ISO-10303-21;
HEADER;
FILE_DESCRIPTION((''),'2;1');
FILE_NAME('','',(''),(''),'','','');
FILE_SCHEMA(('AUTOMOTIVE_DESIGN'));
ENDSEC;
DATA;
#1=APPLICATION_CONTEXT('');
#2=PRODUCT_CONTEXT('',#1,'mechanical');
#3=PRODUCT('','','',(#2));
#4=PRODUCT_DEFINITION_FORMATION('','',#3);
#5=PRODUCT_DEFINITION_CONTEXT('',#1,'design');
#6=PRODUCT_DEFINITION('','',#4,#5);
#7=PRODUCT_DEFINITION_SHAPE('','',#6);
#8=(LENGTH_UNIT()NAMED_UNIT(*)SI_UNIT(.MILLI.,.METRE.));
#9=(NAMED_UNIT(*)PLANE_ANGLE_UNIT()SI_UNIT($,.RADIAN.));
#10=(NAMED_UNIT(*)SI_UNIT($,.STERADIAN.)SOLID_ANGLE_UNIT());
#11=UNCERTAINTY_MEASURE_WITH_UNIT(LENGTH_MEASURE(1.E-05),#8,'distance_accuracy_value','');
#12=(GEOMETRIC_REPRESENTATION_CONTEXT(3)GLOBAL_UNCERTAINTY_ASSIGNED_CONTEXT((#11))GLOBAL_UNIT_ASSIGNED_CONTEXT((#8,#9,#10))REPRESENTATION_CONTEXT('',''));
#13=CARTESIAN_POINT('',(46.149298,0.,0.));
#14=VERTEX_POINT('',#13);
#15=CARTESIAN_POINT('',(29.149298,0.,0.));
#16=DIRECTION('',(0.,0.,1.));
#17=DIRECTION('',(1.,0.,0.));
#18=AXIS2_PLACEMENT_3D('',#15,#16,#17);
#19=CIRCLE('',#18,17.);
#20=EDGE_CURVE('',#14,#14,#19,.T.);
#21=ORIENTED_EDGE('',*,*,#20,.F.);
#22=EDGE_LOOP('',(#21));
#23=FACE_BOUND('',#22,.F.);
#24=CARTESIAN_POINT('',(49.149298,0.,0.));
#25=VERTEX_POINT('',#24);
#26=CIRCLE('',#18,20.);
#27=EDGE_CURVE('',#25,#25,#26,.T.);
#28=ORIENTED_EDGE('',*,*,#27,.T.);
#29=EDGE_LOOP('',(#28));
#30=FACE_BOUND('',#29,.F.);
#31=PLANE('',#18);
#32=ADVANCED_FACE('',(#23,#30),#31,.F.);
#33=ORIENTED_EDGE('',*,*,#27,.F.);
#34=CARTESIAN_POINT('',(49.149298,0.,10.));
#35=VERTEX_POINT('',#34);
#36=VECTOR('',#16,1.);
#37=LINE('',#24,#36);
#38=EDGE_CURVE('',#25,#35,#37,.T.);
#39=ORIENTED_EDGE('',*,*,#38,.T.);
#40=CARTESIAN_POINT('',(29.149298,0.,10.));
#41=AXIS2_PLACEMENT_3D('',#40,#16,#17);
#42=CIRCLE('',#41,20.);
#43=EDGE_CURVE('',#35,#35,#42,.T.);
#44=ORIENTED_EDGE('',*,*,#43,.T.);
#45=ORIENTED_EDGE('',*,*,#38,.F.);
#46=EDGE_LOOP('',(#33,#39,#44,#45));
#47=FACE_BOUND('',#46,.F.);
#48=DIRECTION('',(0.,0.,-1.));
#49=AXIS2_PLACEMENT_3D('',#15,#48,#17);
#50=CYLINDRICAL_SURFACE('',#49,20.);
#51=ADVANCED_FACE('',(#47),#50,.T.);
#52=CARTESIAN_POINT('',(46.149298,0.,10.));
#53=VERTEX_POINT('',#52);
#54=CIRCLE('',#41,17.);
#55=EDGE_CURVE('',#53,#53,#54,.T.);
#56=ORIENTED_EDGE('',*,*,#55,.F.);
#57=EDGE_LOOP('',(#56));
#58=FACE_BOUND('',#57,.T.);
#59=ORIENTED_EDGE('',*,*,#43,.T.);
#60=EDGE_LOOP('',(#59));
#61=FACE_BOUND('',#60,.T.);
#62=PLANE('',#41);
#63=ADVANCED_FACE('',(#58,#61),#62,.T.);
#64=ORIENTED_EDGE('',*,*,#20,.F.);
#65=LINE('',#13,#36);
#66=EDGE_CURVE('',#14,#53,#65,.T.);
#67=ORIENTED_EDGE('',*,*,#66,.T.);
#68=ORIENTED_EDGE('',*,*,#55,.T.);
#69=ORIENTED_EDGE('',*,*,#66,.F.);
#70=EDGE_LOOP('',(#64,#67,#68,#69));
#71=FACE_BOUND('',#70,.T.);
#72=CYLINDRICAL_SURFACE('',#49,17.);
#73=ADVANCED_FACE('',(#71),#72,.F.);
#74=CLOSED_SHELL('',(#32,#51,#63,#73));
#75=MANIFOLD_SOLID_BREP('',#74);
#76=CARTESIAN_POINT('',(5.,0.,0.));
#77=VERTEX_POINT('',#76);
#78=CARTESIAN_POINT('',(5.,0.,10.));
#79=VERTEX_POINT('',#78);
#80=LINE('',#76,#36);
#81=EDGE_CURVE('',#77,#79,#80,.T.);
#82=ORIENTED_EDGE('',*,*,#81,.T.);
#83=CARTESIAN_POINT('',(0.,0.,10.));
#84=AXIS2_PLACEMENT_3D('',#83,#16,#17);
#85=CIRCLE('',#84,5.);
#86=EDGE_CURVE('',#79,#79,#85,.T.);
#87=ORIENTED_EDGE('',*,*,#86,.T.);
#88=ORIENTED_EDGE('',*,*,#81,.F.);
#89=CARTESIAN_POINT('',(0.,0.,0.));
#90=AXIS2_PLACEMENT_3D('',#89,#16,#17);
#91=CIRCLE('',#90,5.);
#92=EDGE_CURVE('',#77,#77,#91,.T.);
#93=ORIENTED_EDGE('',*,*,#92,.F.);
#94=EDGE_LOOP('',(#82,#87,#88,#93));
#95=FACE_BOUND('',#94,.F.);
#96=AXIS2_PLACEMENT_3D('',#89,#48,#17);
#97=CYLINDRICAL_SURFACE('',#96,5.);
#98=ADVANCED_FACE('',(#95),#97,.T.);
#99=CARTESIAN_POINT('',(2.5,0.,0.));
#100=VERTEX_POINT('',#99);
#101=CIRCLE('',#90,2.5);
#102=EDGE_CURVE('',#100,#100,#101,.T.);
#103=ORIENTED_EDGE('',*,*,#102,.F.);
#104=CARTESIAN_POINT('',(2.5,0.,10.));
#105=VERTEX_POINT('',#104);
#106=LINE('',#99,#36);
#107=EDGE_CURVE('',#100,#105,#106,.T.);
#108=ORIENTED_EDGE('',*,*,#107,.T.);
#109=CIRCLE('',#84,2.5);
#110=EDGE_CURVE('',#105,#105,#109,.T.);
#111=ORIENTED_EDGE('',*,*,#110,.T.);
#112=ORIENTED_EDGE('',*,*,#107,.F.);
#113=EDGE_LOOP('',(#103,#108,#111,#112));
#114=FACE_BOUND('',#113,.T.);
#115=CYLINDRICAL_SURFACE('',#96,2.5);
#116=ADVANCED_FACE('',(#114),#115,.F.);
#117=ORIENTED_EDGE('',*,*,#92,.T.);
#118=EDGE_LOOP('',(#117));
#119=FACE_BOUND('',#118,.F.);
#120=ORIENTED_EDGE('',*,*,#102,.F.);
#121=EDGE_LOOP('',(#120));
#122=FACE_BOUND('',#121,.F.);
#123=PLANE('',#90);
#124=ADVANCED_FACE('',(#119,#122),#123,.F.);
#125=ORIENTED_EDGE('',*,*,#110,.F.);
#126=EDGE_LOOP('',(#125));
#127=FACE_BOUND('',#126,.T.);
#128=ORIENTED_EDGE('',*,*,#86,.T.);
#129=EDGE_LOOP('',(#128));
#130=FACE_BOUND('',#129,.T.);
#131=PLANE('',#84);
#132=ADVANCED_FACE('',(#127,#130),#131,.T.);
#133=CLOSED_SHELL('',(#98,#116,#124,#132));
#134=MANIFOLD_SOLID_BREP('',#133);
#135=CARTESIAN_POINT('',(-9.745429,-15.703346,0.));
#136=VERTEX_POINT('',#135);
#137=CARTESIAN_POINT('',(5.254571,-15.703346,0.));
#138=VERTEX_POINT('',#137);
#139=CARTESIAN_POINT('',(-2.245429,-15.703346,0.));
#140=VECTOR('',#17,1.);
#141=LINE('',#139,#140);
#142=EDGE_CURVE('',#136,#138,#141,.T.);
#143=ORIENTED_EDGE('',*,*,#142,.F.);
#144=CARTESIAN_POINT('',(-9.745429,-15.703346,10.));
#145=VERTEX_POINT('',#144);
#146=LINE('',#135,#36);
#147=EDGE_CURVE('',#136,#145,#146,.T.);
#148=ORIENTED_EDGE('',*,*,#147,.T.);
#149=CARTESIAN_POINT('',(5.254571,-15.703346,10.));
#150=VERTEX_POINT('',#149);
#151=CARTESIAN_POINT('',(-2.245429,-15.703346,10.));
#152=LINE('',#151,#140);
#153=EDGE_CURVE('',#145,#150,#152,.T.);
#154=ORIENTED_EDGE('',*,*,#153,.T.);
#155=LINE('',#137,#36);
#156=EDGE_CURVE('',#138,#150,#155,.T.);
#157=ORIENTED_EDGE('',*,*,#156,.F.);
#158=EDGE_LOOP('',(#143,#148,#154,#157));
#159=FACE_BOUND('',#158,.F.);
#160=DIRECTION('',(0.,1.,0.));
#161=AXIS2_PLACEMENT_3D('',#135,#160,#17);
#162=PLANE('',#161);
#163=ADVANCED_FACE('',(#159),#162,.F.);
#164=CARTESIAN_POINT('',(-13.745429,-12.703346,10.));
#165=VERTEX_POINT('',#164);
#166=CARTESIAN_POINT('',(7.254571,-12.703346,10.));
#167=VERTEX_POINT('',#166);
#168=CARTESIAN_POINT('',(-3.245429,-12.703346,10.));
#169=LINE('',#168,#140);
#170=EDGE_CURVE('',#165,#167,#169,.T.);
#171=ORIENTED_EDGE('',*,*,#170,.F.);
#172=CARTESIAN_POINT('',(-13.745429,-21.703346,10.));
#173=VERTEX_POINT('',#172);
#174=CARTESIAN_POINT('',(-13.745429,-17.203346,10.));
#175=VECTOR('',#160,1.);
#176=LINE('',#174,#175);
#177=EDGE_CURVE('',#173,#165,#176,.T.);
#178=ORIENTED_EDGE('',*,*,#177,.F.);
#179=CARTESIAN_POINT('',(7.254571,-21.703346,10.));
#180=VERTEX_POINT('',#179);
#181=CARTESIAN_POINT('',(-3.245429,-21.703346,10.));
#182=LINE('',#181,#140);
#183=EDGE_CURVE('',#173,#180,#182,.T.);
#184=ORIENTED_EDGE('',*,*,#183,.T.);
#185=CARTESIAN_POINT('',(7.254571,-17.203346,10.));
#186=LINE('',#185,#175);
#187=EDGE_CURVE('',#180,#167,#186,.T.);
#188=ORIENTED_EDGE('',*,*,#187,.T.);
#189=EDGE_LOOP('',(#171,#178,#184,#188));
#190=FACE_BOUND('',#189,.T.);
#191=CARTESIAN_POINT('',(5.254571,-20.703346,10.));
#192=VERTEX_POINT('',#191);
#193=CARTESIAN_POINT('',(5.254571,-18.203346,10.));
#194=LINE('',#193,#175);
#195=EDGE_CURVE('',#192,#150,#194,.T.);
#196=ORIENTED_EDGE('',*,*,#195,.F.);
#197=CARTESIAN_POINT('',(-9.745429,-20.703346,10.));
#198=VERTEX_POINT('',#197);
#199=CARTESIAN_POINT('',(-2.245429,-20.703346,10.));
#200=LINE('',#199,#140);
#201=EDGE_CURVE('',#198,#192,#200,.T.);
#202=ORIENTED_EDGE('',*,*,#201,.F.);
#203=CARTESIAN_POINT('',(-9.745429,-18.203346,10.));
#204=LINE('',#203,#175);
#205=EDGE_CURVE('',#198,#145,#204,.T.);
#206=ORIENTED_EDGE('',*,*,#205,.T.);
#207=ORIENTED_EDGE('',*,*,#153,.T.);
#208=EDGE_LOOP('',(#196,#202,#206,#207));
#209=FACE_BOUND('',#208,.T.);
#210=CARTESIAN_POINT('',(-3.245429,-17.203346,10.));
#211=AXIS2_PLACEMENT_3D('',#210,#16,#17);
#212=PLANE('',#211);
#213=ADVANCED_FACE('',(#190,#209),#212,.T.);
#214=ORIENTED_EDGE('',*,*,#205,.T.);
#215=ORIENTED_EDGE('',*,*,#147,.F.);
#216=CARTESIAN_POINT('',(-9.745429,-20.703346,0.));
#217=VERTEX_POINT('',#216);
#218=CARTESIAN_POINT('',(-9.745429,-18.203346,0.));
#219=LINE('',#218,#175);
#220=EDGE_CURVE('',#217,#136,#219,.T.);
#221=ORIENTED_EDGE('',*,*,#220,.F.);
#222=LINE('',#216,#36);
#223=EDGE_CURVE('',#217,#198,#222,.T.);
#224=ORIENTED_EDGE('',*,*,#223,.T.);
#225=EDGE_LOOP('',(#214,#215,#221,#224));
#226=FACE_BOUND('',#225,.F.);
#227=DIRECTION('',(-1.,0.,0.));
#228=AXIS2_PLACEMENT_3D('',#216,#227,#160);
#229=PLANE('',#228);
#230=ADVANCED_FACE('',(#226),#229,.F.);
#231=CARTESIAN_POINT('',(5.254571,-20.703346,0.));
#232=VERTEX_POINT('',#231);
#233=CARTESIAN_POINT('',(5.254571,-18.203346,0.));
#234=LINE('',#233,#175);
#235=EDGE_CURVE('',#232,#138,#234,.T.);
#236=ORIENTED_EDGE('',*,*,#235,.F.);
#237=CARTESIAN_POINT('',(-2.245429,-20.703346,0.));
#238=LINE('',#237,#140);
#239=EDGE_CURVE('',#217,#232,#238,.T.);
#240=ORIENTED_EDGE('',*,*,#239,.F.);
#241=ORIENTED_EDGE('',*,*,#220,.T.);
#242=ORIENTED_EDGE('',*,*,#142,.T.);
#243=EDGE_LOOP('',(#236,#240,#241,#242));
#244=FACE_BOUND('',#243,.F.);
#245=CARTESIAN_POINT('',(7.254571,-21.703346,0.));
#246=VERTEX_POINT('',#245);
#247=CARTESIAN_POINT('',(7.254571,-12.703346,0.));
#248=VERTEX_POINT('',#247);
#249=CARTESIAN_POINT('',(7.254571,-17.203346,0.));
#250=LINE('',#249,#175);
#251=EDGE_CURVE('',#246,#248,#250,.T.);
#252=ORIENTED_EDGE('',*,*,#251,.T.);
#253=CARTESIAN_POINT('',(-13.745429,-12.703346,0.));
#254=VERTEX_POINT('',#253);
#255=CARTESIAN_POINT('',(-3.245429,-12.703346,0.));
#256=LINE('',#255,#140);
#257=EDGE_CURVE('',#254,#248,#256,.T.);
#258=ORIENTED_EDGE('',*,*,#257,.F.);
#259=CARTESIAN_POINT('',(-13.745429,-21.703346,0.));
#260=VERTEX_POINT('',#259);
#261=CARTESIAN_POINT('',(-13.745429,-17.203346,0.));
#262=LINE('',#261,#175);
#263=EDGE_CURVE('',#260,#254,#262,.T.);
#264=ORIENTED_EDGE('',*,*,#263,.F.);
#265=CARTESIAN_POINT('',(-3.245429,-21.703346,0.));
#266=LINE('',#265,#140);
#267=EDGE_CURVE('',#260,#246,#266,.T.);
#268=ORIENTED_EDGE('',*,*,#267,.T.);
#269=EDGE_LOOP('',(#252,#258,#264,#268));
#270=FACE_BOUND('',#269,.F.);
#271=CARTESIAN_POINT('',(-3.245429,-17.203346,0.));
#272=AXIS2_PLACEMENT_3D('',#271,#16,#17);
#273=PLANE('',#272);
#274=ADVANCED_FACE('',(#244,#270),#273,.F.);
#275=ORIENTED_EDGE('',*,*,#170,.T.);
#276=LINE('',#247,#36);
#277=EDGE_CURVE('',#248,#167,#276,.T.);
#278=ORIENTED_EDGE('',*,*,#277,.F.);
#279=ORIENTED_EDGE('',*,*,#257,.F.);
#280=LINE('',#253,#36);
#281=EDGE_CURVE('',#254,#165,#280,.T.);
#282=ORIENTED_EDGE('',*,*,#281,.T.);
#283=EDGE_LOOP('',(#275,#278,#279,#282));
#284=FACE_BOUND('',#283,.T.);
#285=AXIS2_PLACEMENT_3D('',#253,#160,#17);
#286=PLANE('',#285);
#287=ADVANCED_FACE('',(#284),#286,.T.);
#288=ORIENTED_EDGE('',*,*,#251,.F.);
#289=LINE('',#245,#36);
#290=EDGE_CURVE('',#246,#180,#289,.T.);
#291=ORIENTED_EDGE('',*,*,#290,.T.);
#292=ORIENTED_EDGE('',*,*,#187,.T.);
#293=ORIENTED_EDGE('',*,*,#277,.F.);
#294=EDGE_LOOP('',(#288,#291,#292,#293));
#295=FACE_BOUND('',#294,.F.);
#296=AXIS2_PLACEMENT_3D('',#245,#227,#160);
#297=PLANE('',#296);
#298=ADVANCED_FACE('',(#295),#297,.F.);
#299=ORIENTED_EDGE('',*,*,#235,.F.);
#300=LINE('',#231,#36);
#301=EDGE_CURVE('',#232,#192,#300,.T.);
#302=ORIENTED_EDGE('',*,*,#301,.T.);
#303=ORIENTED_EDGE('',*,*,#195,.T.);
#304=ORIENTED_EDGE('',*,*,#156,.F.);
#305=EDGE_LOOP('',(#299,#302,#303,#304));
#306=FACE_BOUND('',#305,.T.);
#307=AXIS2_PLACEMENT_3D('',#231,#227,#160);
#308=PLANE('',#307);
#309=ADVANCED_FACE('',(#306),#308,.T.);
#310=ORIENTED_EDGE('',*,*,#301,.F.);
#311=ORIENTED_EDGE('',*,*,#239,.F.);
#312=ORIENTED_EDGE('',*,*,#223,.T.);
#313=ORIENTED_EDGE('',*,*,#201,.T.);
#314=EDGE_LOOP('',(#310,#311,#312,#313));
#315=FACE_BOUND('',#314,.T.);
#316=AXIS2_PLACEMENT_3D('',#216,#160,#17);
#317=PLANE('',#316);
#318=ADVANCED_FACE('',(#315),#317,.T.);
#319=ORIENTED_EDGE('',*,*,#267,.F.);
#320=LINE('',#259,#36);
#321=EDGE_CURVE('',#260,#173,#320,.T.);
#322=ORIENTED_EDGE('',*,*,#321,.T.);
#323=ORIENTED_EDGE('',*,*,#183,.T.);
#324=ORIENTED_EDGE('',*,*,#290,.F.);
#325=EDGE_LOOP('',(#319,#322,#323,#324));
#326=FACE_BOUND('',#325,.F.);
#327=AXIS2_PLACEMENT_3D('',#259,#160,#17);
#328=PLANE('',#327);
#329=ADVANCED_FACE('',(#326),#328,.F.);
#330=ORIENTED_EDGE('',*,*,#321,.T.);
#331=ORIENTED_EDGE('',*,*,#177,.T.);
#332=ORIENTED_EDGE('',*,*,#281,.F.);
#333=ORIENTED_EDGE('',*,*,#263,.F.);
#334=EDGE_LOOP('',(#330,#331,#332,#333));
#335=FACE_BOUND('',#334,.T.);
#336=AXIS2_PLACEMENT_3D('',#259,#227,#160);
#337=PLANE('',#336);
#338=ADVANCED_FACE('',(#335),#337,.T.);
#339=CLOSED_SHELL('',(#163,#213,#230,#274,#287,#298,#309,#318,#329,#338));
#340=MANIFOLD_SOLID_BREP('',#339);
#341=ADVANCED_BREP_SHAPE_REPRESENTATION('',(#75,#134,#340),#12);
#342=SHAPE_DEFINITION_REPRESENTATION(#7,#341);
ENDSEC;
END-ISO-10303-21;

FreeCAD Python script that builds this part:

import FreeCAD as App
import Part
import Sketcher

doc = App.newDocument("Part")
body = doc.addObject("PartDesign::Body", "Body")
body.AllowCompound = True

# Sketch on XY plane
sketch1 = body.newObject("Sketcher::SketchObject", "Sketch")
sketch1.AttachmentSupport = (doc.getObject("XY_Plane"), [""])
sketch1.MapMode = "FlatFace"
sketch1.addGeometry(Part.Circle(App.Vector(29.1, 0, 0), App.Vector(0, 0, 1), 20), False)
sketch1.addGeometry(Part.Circle(App.Vector(29.1, 0, 0), App.Vector(0, 0, 1), 17), False)
sketch1.addGeometry(Part.Circle(App.Vector(0, 0, 0), App.Vector(0, 0, 1), 5), False)
sketch1.addGeometry(Part.Circle(App.Vector(0, 0, 0), App.Vector(0, 0, 1), 2.5), False)
sketch1.addConstraint(Sketcher.Constraint("Coincident", 2, 3, -1, 1))
sketch1.addConstraint(Sketcher.Constraint("Coincident", 3, 3, -1, 1))
sketch1.addConstraint(Sketcher.Constraint("Coincident", 1, 3, 0, 3))
sketch1.addConstraint(Sketcher.Constraint("PointOnObject", 0, 3, -1))
sketch1.addConstraint(Sketcher.Constraint("Diameter", 0, 40.0))
sketch1.addConstraint(Sketcher.Constraint("Diameter", 1, 34.0))
sketch1.addConstraint(Sketcher.Constraint("Diameter", 2, 10.0))
sketch1.addConstraint(Sketcher.Constraint("Diameter", 3, 5.0))
sketch1.addConstraint(Sketcher.Constraint("DistanceX", -1, 1, 0, 3, 29.149298))
pad1 = body.newObject("PartDesign::Pad", "Pad")
pad1.Profile = sketch1
pad1.Length = 10
body2 = doc.addObject("PartDesign::Body", "Body001")

# Sketch on XY plane
sketch2 = body2.newObject("Sketcher::SketchObject", "Sketch001")
sketch2.AttachmentSupport = (doc.getObject("XY_Plane001"), [""])
sketch2.MapMode = "FlatFace"
sketch2.addGeometry(Part.LineSegment(App.Vector(-14, -13, 0), App.Vector(-14, -22, 0)), False)
sketch2.addGeometry(Part.LineSegment(App.Vector(-14, -22, 0), App.Vector(7, -22, 0)), False)
sketch2.addGeometry(Part.LineSegment(App.Vector(7, -22, 0), App.Vector(7, -13, 0)), False)
sketch2.addGeometry(Part.LineSegment(App.Vector(7, -13, 0), App.Vector(-14, -13, 0)), False)
sketch2.addGeometry(Part.LineSegment(App.Vector(5, -21, 0), App.Vector(-10, -21, 0)), False)
sketch2.addGeometry(Part.LineSegment(App.Vector(-10, -21, 0), App.Vector(-10, -16, 0)), False)
sketch2.addGeometry(Part.LineSegment(App.Vector(-10, -16, 0), App.Vector(5, -16, 0)), False)
sketch2.addGeometry(Part.LineSegment(App.Vector(5, -16, 0), App.Vector(5, -21, 0)), False)
sketch2.addConstraint(Sketcher.Constraint("Coincident", 0, 2, 1, 1))
sketch2.addConstraint(Sketcher.Constraint("Coincident", 1, 2, 2, 1))
sketch2.addConstraint(Sketcher.Constraint("Coincident", 2, 2, 3, 1))
sketch2.addConstraint(Sketcher.Constraint("Coincident", 3, 2, 0, 1))
sketch2.addConstraint(Sketcher.Constraint("Coincident", 4, 2, 5, 1))
sketch2.addConstraint(Sketcher.Constraint("Coincident", 5, 2, 6, 1))
sketch2.addConstraint(Sketcher.Constraint("Coincident", 6, 2, 7, 1))
sketch2.addConstraint(Sketcher.Constraint("Coincident", 7, 2, 4, 1))
sketch2.addConstraint(Sketcher.Constraint("Vertical", 0))
sketch2.addConstraint(Sketcher.Constraint("Horizontal", 1))
sketch2.addConstraint(Sketcher.Constraint("Vertical", 2))
sketch2.addConstraint(Sketcher.Constraint("Horizontal", 3))
sketch2.addConstraint(Sketcher.Constraint("Horizontal", 4))
sketch2.addConstraint(Sketcher.Constraint("Vertical", 5))
sketch2.addConstraint(Sketcher.Constraint("Horizontal", 6))
sketch2.addConstraint(Sketcher.Constraint("Vertical", 7))
sketch2.addConstraint(Sketcher.Constraint("DistanceX", 1, 1, 1, 2, 21.0))
sketch2.addConstraint(Sketcher.Constraint("DistanceX", 4, 2, 4, 1, 15.0))
sketch2.addConstraint(Sketcher.Constraint("DistanceY", 0, 2, 0, 1, 9.0))
sketch2.addConstraint(Sketcher.Constraint("DistanceY", 5, 1, 5, 2, 5.0))
sketch2.addConstraint(Sketcher.Constraint("DistanceX", 0, 2, 4, 2, 4.0))
sketch2.addConstraint(Sketcher.Constraint("DistanceY", 0, 2, 4, 2, 1.0))
sketch2.addConstraint(Sketcher.Constraint("DistanceX", 0, 2, -1, 1, 13.745429))
sketch2.addConstraint(Sketcher.Constraint("DistanceY", 0, 2, -1, 1, 21.703346))
pad2 = body2.newObject("PartDesign::Pad", "Pad001")
pad2.Profile = sketch2
pad2.Length = 10

doc.recompute()
